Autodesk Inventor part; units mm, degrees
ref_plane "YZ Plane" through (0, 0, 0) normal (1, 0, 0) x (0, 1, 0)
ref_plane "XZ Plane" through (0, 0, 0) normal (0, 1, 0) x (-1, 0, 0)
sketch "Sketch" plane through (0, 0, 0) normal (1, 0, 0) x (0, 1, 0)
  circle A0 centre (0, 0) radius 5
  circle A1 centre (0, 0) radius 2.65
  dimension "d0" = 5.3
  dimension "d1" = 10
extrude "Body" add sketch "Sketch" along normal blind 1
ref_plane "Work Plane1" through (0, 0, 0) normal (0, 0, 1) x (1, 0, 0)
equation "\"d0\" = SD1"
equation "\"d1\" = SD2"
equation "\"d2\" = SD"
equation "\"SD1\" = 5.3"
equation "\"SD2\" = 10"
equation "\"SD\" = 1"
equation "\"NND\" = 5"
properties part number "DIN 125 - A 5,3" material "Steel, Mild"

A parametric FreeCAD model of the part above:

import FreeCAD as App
import Part
import Sketcher
from FreeCAD import Vector
Q = App.Units.Quantity

doc = App.newDocument("Part")
body = doc.addObject("PartDesign::Body", "Body")

# Sketch on YZ plane
sketch1 = doc.addObject("Sketcher::SketchObject", "Sketch")
body.addObject(sketch1)
sketch1.AttachmentSupport = (doc.YZ_Plane, [""])
sketch1.MapMode = "FlatFace"
sketch1.addGeometry([
    Part.Circle(Vector(0, 0, 0), Vector(0, 0, 1), 5),
    Part.Circle(Vector(0, 0, 0), Vector(0, 0, 1), 2.6),
], False)
sketch1.addConstraint([
    Sketcher.Constraint("Coincident", 0, 3, -1, 1),
    Sketcher.Constraint("Coincident", 1, 3, -1, 1),
    Sketcher.Constraint("Diameter", 0, Q("10 mm")),
    Sketcher.Constraint("Diameter", 1, Q("5.3 mm")),
])
pad1 = doc.addObject("PartDesign::Pad", "Pad")
body.addObject(pad1)
pad1.Profile = sketch1
pad1.Length = 1

doc.recompute()
